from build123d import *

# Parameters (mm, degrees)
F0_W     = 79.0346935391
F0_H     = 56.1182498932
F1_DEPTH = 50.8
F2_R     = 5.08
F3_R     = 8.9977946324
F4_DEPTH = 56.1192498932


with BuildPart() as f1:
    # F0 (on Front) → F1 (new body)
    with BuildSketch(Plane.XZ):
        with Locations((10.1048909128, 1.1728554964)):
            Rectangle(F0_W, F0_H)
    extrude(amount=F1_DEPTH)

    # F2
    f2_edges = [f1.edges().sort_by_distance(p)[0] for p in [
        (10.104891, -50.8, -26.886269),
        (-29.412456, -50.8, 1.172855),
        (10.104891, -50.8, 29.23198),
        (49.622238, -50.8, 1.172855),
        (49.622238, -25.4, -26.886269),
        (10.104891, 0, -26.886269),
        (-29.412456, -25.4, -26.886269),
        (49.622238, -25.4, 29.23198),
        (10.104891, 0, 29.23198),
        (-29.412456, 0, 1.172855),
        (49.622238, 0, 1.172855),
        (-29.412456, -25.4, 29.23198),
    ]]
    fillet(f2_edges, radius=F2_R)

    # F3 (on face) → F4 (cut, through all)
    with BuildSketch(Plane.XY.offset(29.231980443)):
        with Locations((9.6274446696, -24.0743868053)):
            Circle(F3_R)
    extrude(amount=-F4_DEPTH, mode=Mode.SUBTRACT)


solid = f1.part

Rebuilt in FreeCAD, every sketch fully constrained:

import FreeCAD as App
import Part
import Sketcher
Q = App.Units.Quantity

doc = App.newDocument("Part")
body = doc.addObject("PartDesign::Body", "Body")

sketch1 = body.newObject("Sketcher::SketchObject", "Sketch")
sketch1.AttachmentSupport = (doc.getObject("XZ_Plane"), [""])
sketch1.MapMode = "FlatFace"
sketch1.addGeometry([
    Part.LineSegment(App.Vector(-29, 29, 0), App.Vector(-29, -27, 0)),
    Part.LineSegment(App.Vector(-29, -27, 0), App.Vector(50, -27, 0)),
    Part.LineSegment(App.Vector(50, -27, 0), App.Vector(50, 29, 0)),
    Part.LineSegment(App.Vector(50, 29, 0), App.Vector(-29, 29, 0)),
], False)
sketch1.addConstraint([
    Sketcher.Constraint("Coincident", 0, 2, 1, 1),
    Sketcher.Constraint("Coincident", 1, 2, 2, 1),
    Sketcher.Constraint("Coincident", 2, 2, 3, 1),
    Sketcher.Constraint("Coincident", 3, 2, 0, 1),
    Sketcher.Constraint("Vertical", 0),
    Sketcher.Constraint("Horizontal", 1),
    Sketcher.Constraint("Vertical", 2),
    Sketcher.Constraint("Horizontal", 3),
    Sketcher.Constraint("DistanceY", 0, 2, 0, 1, 56.11825),
    Sketcher.Constraint("DistanceX", 1, 1, 1, 2, 79.034694),
    Sketcher.Constraint("DistanceY", 0, 2, -1, 1, 26.886269),
    Sketcher.Constraint("DistanceX", 0, 2, -1, 1, 29.412456),
])
pad1 = body.newObject("PartDesign::Pad", "Pad")
pad1.Profile = sketch1
pad1.Length = Q("2 in")
doc.recompute()

fillet = body.newObject("PartDesign::Fillet", "Fillet")
fillet.Base = (pad1, ["Edge1"])
fillet.UseAllEdges = True
fillet.Radius = Q("0.2 in")

sketch2 = body.newObject("Sketcher::SketchObject", "Sketch001")
sketch2.AttachmentSupport = (doc.getObject("XY_Plane"), [""])
sketch2.MapMode = "FlatFace"
sketch2.AttachmentOffset = App.Placement(App.Vector(0, 0, 29.23198), App.Rotation())
sketch2.addGeometry(Part.Circle(App.Vector(10, -24, 0), App.Vector(0, 0, 1), 9), False)
sketch2.addConstraint([
    Sketcher.Constraint("Diameter", 0, 17.995589),
    Sketcher.Constraint("DistanceX", -1, 1, 0, 3, 9.627445),
    Sketcher.Constraint("DistanceY", 0, 3, -1, 1, 24.074387),
])
pocket1 = body.newObject("PartDesign::Pocket", "Pocket")
pocket1.Profile = sketch2
pocket1.Type = "ThroughAll"

doc.recompute()
